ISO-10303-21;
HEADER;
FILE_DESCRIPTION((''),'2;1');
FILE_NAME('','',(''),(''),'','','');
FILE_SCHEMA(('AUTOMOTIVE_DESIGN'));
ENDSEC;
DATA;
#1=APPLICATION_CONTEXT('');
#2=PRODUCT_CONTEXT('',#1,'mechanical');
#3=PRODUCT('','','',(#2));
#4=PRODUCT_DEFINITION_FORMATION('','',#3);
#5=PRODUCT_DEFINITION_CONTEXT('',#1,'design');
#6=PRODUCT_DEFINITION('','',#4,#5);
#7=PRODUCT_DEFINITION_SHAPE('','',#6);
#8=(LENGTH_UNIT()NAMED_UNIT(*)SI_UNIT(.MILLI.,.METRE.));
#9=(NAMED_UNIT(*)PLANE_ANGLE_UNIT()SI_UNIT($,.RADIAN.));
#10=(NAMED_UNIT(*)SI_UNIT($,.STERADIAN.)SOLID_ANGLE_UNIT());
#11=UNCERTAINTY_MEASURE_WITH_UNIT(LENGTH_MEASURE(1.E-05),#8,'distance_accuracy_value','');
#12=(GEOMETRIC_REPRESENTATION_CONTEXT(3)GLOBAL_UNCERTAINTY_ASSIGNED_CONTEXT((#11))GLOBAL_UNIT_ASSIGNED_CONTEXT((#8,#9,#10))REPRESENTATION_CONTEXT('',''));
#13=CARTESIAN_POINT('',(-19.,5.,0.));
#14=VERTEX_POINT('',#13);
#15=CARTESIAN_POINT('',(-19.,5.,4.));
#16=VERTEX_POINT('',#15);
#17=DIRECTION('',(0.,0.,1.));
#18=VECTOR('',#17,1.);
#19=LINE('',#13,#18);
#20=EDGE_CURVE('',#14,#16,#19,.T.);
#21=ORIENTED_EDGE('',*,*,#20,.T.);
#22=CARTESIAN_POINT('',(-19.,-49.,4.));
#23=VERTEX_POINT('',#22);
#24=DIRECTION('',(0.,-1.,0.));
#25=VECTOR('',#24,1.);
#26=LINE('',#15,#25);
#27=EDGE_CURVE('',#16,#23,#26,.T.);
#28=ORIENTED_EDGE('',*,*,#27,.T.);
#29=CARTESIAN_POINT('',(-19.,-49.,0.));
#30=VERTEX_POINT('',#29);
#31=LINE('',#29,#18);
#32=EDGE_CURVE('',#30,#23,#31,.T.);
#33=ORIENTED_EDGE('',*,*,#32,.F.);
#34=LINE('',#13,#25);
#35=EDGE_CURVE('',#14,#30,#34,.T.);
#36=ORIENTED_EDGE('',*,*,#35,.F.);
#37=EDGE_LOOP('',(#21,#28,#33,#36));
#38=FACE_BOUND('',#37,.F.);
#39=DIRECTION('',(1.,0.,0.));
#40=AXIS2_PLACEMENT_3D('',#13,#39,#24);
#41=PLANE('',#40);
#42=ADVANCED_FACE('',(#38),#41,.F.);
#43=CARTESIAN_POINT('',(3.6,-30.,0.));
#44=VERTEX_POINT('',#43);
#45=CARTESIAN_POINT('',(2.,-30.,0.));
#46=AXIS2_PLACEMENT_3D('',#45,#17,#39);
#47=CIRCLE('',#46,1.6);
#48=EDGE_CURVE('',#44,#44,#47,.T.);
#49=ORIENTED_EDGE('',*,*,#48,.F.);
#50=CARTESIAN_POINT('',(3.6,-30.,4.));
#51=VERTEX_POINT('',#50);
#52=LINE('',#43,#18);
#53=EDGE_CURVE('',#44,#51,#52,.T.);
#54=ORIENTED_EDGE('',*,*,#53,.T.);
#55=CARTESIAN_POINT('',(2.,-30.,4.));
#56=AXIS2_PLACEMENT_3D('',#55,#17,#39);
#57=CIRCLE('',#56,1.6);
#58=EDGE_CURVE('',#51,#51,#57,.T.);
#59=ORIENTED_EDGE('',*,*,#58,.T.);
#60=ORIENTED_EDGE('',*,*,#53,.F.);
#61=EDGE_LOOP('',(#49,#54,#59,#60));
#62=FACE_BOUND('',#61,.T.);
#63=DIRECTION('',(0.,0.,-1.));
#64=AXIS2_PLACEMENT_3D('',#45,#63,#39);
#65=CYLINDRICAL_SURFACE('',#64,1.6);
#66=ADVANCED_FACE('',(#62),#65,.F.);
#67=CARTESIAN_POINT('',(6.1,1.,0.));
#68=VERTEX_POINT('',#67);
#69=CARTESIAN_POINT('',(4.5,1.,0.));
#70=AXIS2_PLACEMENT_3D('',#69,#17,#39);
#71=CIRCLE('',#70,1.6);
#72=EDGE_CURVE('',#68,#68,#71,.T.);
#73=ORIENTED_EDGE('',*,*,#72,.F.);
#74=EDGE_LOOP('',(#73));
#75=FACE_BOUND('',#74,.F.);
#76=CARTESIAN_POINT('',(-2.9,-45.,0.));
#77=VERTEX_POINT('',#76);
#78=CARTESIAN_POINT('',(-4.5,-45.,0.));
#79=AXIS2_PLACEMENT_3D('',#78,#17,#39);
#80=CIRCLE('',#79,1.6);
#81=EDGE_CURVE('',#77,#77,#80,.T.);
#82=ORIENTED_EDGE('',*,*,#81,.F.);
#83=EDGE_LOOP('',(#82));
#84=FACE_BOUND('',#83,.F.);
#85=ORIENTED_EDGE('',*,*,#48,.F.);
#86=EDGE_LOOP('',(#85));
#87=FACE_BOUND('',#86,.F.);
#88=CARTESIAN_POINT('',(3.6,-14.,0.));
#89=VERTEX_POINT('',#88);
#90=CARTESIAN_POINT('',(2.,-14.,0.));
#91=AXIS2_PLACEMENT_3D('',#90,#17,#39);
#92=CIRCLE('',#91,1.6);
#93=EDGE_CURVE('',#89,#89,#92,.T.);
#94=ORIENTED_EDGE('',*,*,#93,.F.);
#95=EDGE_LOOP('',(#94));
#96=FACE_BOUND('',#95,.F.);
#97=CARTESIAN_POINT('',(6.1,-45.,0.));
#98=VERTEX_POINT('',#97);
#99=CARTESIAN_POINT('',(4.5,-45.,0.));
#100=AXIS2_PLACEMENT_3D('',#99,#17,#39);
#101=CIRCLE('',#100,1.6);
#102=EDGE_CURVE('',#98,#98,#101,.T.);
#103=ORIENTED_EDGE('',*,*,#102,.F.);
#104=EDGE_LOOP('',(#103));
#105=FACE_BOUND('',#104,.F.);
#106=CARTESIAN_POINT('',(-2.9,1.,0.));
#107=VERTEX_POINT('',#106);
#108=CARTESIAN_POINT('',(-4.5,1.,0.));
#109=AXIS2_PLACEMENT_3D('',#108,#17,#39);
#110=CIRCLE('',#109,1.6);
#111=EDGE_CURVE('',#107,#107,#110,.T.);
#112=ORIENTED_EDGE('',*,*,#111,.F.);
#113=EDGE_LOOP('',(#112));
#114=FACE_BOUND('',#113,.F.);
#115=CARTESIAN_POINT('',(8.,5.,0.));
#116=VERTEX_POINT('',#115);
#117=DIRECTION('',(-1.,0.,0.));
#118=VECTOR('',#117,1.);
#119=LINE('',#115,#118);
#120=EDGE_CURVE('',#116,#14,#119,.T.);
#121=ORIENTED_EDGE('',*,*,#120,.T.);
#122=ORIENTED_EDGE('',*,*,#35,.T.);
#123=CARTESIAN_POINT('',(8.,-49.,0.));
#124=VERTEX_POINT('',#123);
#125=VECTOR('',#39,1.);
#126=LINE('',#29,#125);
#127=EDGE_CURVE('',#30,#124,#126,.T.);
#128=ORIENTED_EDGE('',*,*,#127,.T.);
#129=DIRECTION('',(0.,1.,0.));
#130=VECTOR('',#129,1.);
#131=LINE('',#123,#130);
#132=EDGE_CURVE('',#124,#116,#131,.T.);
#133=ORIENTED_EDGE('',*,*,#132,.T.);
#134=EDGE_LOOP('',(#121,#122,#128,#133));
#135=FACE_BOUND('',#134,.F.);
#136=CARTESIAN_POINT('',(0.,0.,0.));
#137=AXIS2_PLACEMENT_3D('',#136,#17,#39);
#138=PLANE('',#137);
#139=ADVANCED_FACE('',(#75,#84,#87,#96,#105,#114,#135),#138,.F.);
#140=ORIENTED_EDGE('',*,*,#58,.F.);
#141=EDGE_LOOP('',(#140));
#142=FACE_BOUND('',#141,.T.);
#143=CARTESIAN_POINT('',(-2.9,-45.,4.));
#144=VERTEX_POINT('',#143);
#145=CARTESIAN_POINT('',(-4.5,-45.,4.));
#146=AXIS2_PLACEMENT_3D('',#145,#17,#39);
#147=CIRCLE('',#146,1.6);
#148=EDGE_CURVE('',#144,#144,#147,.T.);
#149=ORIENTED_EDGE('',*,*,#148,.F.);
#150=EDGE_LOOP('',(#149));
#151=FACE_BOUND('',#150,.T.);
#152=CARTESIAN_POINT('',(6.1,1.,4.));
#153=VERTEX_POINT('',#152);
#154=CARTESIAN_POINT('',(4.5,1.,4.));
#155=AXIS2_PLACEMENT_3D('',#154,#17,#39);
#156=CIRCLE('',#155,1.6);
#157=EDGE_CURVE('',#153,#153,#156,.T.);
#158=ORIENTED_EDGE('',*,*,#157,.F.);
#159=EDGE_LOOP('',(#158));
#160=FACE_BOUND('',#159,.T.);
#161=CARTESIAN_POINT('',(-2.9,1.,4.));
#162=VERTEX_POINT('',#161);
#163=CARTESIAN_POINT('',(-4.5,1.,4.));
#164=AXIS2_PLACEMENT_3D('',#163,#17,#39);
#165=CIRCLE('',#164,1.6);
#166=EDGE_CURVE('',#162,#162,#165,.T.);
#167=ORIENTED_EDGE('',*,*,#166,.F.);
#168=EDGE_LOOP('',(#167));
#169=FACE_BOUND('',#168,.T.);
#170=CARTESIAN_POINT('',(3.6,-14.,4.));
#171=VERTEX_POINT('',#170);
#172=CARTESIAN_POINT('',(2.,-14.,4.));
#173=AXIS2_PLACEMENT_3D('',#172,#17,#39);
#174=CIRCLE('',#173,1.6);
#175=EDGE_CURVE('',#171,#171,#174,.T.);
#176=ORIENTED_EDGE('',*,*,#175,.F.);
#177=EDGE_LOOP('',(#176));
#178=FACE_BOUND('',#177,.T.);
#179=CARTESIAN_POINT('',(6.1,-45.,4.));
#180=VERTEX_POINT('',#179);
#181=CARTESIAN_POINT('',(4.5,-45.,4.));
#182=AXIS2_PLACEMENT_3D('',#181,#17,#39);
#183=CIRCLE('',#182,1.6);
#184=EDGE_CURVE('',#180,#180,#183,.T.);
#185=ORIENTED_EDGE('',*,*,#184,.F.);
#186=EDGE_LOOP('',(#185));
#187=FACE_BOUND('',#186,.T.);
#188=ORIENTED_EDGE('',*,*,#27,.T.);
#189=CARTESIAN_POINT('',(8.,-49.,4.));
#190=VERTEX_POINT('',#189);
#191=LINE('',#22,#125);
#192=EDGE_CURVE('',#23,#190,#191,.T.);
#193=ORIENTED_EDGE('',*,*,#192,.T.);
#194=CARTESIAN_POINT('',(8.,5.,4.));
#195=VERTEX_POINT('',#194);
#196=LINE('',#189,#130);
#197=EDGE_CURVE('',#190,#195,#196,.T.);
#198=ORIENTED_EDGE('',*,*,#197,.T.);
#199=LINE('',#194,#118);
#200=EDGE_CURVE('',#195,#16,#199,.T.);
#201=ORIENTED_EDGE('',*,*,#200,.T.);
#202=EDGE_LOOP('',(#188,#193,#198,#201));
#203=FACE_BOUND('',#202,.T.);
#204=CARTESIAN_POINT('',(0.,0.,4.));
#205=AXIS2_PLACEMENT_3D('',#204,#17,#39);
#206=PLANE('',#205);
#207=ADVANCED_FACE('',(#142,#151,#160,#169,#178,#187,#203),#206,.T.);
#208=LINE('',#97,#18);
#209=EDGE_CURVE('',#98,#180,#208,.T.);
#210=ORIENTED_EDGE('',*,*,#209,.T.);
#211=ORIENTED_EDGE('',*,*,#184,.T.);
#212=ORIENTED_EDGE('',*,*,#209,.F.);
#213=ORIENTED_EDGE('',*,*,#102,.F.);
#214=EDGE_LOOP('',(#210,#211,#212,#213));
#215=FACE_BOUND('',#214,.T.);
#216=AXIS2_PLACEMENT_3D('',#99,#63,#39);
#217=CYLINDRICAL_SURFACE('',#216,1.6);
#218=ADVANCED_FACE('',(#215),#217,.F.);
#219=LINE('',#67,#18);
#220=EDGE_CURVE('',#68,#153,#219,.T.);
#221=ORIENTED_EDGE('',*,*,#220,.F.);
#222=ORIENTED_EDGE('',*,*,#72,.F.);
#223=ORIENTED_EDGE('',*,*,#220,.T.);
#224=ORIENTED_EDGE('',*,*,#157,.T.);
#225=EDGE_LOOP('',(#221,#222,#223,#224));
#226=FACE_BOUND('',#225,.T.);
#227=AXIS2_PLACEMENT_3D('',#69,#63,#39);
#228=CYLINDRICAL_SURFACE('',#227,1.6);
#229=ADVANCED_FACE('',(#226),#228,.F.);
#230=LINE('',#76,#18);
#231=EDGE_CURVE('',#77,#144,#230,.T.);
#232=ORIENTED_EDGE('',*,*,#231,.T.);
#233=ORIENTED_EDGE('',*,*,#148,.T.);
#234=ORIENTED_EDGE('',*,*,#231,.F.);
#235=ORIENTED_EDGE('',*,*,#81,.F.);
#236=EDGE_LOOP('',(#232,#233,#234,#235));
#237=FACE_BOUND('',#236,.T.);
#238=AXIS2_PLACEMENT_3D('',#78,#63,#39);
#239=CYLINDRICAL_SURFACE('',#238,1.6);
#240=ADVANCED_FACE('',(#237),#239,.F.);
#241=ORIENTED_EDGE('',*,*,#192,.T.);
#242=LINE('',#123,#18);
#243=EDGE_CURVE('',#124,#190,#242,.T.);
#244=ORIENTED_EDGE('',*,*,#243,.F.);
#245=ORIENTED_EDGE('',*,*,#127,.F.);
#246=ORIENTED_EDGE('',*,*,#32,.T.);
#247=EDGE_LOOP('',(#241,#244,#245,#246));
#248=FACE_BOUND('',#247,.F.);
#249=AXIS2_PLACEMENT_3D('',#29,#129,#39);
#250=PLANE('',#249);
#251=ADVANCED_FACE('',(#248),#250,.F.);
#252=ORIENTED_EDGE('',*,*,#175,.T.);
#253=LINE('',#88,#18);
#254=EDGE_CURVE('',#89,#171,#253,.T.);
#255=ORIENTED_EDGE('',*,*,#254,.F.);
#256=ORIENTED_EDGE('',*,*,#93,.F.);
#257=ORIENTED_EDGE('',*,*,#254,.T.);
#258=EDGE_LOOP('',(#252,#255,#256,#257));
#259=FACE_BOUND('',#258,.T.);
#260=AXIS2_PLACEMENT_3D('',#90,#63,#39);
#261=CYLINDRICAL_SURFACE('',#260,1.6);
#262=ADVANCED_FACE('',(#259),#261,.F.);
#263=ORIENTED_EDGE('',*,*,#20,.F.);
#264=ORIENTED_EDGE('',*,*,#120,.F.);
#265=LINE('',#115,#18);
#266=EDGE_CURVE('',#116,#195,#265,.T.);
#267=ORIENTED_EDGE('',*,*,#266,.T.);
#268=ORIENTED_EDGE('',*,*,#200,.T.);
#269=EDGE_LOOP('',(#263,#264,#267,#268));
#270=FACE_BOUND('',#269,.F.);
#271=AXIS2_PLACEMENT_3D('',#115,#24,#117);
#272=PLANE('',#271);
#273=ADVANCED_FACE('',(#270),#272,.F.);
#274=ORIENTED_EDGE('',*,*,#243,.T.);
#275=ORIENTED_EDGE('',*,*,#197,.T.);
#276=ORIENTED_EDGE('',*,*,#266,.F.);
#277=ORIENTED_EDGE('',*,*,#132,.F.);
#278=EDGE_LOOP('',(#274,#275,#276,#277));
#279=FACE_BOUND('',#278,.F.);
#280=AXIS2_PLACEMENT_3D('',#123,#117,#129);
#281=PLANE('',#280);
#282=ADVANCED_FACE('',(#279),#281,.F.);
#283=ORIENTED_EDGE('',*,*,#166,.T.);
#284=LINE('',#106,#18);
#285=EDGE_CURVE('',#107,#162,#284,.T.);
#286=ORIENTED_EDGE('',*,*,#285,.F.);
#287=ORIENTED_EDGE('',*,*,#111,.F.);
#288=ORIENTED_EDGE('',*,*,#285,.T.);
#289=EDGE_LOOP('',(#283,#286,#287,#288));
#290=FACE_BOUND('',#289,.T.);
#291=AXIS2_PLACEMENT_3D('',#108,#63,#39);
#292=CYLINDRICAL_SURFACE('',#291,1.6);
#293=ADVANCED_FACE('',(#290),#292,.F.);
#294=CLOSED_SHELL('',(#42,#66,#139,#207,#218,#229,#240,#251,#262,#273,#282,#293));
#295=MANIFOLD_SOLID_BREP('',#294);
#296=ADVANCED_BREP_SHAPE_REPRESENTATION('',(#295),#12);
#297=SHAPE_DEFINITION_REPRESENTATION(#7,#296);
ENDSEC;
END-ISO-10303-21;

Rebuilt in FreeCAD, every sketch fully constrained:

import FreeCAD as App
import Part
import Sketcher

V = App.Vector


def add_polygon(sketch, points):
    """Adds a closed chain of lines whose ends are joined by coincident constraints."""
    first, n = sketch.GeometryCount, len(points)
    for a, b in zip(points, points[1:] + points[:1]):
        sketch.addGeometry(Part.LineSegment(App.Vector(*a, 0), App.Vector(*b, 0)), False)
    for i in range(n):
        sketch.addConstraint(Sketcher.Constraint("Coincident", first + i, 2, first + (i + 1) % n, 1))

doc = App.newDocument("Part")
body = doc.addObject("PartDesign::Body", "Body")

sketch1 = doc.addObject("Sketcher::SketchObject", "Sketch")
body.addObject(sketch1)
sketch1.AttachmentSupport = (doc.XY_Plane, [""])
sketch1.MapMode = "FlatFace"
add_polygon(sketch1, [(8, -49), (8, 5), (-19, 5), (-19, -49)])
sketch1.addGeometry(Part.Circle(V(-4.5, -45, 0), V(0, 0, 1), 1.6), False)
sketch1.addGeometry(Part.Circle(V(4.5, -45, 0), V(0, 0, 1), 1.6), False)
sketch1.addGeometry(Part.Circle(V(2, -30, 0), V(0, 0, 1), 1.6), False)
sketch1.addGeometry(Part.Circle(V(2, -14, 0), V(0, 0, 1), 1.6), False)
sketch1.addGeometry(Part.Circle(V(-4.5, 1, 0), V(0, 0, 1), 1.6), False)
sketch1.addGeometry(Part.Circle(V(4.5, 1, 0), V(0, 0, 1), 1.6), False)
sketch1.addConstraint(Sketcher.Constraint("Vertical", 0))
sketch1.addConstraint(Sketcher.Constraint("Horizontal", 1))
sketch1.addConstraint(Sketcher.Constraint("Vertical", 2))
sketch1.addConstraint(Sketcher.Constraint("Horizontal", 3))
sketch1.addConstraint(Sketcher.Constraint("Equal", 4, 5))
sketch1.addConstraint(Sketcher.Constraint("Equal", 5, 6))
sketch1.addConstraint(Sketcher.Constraint("Equal", 6, 7))
sketch1.addConstraint(Sketcher.Constraint("Equal", 7, 8))
sketch1.addConstraint(Sketcher.Constraint("Equal", 8, 9))
sketch1.addConstraint(Sketcher.Constraint("Symmetric", 4, 3, 5, 3, -2))
sketch1.addConstraint(Sketcher.Constraint("Symmetric", 8, 3, 9, 3, -2))
sketch1.addConstraint(Sketcher.Constraint("Vertical", 6, 3, 7, 3))
sketch1.addConstraint(Sketcher.Constraint("Vertical", 4, 3, 8, 3))
sketch1.addConstraint(Sketcher.Constraint("Diameter", 4, 3.2))
sketch1.addConstraint(Sketcher.Constraint("DistanceX", 1, 2, -1, 1, 19.0))
sketch1.addConstraint(Sketcher.Constraint("DistanceY", 7, 3, 0, 2, 19.0))
sketch1.addConstraint(Sketcher.Constraint("DistanceY", 2, 2, 6, 3, 19.0))
sketch1.addConstraint(Sketcher.Constraint("DistanceX", 1, 2, 1, 1, 27.0))
sketch1.addConstraint(Sketcher.Constraint("DistanceY", 0, 1, 0, 2, 54.0))
sketch1.addConstraint(Sketcher.Constraint("DistanceY", 4, 3, -1, 1, 45.0))
sketch1.addConstraint(Sketcher.Constraint("DistanceX", -1, 1, 6, 3, 2.0))
sketch1.addConstraint(Sketcher.Constraint("DistanceY", 6, 3, -1, 1, 30.0))
sketch1.addConstraint(Sketcher.Constraint("DistanceY", -1, 1, 8, 3, 1.0))
sketch1.addConstraint(Sketcher.Constraint("DistanceX", 4, 3, 5, 3, 9.0))
pad1 = doc.addObject("PartDesign::Pad", "Pad")
body.addObject(pad1)
pad1.Profile = sketch1
pad1.Length = 4

doc.recompute()
